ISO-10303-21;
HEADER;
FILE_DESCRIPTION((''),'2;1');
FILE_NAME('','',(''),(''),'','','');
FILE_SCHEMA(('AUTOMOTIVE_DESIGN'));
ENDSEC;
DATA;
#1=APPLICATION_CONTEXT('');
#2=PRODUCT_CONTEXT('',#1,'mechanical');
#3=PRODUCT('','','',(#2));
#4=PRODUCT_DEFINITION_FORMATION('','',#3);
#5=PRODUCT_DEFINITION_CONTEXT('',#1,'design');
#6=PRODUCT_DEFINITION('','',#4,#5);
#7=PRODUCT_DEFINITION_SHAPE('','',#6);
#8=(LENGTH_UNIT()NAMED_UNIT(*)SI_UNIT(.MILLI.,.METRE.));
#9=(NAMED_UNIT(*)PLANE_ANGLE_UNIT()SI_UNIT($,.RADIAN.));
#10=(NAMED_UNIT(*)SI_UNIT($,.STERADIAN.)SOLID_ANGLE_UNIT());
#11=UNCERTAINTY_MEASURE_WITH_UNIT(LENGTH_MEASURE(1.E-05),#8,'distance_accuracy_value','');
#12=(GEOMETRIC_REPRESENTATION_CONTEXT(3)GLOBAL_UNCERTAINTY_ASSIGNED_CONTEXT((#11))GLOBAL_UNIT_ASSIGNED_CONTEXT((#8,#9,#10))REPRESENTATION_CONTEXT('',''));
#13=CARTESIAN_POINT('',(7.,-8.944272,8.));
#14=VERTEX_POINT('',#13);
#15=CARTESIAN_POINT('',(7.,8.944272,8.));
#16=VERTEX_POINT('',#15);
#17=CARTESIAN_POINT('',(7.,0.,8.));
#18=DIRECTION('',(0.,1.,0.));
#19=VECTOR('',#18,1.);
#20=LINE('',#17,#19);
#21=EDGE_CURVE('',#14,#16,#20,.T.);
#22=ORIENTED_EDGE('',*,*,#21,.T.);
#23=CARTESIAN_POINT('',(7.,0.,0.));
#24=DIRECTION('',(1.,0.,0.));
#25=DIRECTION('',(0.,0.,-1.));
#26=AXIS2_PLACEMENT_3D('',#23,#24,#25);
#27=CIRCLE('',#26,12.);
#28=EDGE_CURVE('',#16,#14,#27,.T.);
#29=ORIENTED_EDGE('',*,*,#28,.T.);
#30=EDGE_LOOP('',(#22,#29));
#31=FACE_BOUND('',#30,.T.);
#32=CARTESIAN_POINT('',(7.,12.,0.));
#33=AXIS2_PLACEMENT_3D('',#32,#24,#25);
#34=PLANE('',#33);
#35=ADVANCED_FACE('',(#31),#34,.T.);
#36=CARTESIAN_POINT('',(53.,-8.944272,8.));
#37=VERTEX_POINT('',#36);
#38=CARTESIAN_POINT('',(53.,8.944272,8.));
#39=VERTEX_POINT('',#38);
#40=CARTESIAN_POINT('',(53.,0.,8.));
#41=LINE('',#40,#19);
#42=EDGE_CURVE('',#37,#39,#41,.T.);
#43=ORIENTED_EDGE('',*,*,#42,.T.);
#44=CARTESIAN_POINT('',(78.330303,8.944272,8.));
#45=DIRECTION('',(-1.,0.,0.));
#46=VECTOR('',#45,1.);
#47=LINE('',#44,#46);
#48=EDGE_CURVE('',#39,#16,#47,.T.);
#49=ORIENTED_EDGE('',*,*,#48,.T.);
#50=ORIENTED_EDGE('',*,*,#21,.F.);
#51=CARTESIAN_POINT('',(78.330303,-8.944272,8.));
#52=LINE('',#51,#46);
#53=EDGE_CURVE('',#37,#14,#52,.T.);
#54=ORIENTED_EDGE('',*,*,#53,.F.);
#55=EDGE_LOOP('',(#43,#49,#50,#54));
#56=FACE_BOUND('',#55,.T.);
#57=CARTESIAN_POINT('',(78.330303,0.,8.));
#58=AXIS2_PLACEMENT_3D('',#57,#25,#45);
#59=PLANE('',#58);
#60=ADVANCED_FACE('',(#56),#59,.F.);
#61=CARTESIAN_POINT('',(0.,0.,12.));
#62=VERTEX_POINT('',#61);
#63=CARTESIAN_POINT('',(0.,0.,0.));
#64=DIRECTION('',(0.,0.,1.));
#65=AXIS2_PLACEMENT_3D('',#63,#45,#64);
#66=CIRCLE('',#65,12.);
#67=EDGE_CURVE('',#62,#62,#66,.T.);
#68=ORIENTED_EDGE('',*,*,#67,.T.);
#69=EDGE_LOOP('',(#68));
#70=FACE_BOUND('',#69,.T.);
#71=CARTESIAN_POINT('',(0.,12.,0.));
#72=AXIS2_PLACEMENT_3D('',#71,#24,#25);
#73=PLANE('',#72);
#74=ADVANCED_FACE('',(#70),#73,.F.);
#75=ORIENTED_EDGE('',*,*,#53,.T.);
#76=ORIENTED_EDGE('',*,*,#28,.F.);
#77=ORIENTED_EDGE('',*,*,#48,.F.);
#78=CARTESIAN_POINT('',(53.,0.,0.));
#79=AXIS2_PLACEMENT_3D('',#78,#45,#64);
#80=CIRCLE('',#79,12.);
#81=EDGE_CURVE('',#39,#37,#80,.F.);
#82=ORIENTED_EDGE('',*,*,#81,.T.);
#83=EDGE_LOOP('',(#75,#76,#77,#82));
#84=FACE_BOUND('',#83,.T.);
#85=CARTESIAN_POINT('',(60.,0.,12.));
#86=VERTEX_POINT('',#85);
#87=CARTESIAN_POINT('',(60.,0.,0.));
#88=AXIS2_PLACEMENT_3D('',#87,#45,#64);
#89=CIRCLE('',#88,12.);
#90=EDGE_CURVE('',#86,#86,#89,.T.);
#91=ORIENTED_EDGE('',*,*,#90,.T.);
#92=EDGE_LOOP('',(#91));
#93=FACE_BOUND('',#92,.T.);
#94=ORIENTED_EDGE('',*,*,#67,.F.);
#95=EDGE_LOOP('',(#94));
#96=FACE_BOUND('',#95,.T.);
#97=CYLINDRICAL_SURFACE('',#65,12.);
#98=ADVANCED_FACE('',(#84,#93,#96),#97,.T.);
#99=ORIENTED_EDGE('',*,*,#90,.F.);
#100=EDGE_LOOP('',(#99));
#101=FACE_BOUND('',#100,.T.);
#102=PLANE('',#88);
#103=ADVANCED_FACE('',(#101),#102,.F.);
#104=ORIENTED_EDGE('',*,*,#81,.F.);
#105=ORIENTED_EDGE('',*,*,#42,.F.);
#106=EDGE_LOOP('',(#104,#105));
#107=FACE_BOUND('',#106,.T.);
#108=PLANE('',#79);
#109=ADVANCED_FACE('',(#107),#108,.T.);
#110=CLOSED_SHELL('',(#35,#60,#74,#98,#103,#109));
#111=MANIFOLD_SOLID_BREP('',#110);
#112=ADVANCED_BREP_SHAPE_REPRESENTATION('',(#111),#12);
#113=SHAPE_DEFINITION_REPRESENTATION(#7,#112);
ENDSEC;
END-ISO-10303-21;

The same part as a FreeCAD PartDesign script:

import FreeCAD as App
import Part
import Sketcher

V = App.Vector


def add_polygon(sketch, points):
    """Adds a closed chain of lines whose ends are joined by coincident constraints."""
    first, n = sketch.GeometryCount, len(points)
    for a, b in zip(points, points[1:] + points[:1]):
        sketch.addGeometry(Part.LineSegment(App.Vector(*a, 0), App.Vector(*b, 0)), False)
    for i in range(n):
        sketch.addConstraint(Sketcher.Constraint("Coincident", first + i, 2, first + (i + 1) % n, 1))

doc = App.newDocument("Part")
body = doc.addObject("PartDesign::Body", "Body")

sketch1 = doc.addObject("Sketcher::SketchObject", "Sketch")
body.addObject(sketch1)
sketch1.AttachmentSupport = (doc.XY_Plane, [""])
sketch1.MapMode = "FlatFace"
add_polygon(sketch1, [(0, 12), (0, 0), (60, 0), (60, 12)])
sketch1.addConstraint([
    Sketcher.Constraint("Vertical", 0),
    Sketcher.Constraint("Horizontal", 1),
    Sketcher.Constraint("Vertical", 2),
    Sketcher.Constraint("Horizontal", 3),
    Sketcher.Constraint("Coincident", 0, 2, -1, 1),
    Sketcher.Constraint("DistanceX", 1, 1, 1, 2, 60.0),
    Sketcher.Constraint("DistanceY", 0, 2, 0, 1, 12.0),
])
revolution = doc.addObject("PartDesign::Revolution", "Revolution")
body.addObject(revolution)
revolution.Profile = sketch1
revolution.ReferenceAxis = (sketch1, ["H_Axis"])
revolution.Angle = 360

sketch2 = doc.addObject("Sketcher::SketchObject", "Sketch001")
body.addObject(sketch2)
sketch2.AttachmentSupport = (doc.YZ_Plane, [""])
sketch2.MapMode = "FlatFace"
sketch2.AttachmentOffset = App.Placement(V(0, 0, 30), App.Rotation())
add_polygon(sketch2, [(76.863613, 8), (-76.863613, 8), (-76.863613, 143.838683), (76.863613, 143.838683)])
sketch2.addConstraint([
    Sketcher.Constraint("Horizontal", 0),
    Sketcher.Constraint("Vertical", 1),
    Sketcher.Constraint("Horizontal", 2),
    Sketcher.Constraint("Vertical", 3),
    Sketcher.Constraint("DistanceY", -1, 1, 0, 2, 8.0),
    Sketcher.Constraint("DistanceX", 0, 2, 0, 1, 153.727227),
    Sketcher.Constraint("DistanceY", 1, 1, 1, 2, 135.838683),
    Sketcher.Constraint("DistanceX", 0, 2, -1, 1, 76.863613),
])
pocket1 = doc.addObject("PartDesign::Pocket", "Pocket")
body.addObject(pocket1)
pocket1.Profile = sketch2
pocket1.Type = "TwoLengths"
pocket1.Length = 23
pocket1.Length2 = 23

doc.recompute()
